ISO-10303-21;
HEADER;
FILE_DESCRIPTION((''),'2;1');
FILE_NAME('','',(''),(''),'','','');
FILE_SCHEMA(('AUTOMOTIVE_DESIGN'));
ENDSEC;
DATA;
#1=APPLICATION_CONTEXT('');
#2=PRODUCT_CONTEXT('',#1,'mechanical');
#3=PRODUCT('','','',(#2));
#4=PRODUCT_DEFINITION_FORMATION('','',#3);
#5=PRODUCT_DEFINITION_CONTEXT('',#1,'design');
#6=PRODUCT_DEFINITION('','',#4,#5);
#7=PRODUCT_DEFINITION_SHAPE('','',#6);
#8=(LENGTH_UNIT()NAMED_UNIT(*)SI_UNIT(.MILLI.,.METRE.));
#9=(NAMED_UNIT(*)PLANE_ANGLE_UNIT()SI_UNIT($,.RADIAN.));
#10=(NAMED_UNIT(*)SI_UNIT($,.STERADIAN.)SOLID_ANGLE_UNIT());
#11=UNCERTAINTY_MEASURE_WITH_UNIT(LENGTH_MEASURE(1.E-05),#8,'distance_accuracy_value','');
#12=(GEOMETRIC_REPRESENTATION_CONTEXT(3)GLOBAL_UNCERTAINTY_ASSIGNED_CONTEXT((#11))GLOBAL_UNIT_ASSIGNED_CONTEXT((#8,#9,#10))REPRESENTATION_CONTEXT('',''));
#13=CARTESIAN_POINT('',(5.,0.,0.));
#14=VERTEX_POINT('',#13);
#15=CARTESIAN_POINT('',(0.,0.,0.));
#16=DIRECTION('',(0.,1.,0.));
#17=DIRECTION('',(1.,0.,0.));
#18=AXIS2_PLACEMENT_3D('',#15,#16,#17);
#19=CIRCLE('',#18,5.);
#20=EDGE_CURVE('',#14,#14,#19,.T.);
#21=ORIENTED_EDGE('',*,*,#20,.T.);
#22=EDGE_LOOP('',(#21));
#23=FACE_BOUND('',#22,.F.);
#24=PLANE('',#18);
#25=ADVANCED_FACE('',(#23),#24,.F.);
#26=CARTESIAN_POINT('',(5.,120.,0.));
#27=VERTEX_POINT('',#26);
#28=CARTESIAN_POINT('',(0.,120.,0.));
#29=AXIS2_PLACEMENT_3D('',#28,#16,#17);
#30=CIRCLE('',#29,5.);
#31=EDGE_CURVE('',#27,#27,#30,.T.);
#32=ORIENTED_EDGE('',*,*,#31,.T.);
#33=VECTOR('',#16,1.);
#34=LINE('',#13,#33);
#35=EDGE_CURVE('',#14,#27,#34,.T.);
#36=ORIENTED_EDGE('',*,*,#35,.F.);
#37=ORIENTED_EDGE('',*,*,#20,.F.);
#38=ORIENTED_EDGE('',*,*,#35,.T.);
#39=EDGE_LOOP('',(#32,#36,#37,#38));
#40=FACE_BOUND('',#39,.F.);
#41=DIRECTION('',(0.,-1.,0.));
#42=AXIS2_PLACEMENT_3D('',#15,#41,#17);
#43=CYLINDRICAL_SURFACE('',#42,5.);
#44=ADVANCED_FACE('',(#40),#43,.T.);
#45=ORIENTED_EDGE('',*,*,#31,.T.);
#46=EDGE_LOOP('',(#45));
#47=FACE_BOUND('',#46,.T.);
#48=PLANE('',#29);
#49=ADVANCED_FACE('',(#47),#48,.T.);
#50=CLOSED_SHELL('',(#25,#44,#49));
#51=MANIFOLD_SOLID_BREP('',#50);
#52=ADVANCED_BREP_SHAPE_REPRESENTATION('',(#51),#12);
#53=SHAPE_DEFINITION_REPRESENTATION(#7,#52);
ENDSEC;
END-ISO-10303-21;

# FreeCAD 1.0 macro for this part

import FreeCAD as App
import Part
import Sketcher

V = App.Vector

doc = App.newDocument("Part")
body = doc.addObject("PartDesign::Body", "Body")

sketch1 = body.newObject("Sketcher::SketchObject", "Sketch")
sketch1.AttachmentSupport = (doc.getObject("XZ_Plane"), [""])
sketch1.MapMode = "FlatFace"
sketch1.addGeometry(Part.Circle(V(0, 0, 0), V(0, 0, 1), 5), False)
sketch1.addConstraint(Sketcher.Constraint("Coincident", 0, 3, -1, 1))
sketch1.addConstraint(Sketcher.Constraint("Diameter", 0, 10.0))
pad1 = body.newObject("PartDesign::Pad", "Pad")
pad1.Profile = sketch1
pad1.Length = 120
pad1.Reversed = True

doc.recompute()
